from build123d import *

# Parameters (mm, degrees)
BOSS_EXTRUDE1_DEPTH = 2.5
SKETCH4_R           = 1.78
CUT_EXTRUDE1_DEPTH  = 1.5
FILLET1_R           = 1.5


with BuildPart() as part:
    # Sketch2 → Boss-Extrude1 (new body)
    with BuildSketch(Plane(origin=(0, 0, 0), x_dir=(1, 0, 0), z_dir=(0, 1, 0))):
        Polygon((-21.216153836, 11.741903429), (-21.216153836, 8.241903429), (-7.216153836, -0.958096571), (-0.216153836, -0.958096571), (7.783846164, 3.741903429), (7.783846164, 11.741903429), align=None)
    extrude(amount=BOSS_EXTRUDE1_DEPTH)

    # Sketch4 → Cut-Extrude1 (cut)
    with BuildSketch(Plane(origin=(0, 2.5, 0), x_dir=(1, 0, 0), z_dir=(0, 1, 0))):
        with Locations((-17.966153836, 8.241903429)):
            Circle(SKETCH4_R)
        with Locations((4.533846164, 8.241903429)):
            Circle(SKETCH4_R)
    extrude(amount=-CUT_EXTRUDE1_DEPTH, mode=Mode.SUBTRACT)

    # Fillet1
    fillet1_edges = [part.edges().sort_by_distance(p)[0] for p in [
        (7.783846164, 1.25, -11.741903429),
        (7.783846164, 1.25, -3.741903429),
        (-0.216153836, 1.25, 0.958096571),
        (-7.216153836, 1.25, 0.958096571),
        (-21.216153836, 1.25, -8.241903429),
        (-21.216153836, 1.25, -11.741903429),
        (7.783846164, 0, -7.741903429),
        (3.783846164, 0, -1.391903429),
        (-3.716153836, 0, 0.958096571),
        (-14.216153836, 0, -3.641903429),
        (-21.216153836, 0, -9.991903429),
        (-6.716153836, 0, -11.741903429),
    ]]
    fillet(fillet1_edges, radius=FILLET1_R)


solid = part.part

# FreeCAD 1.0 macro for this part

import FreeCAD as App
import Part
import Sketcher
from FreeCAD import Vector


def edges_at(feature, points):
    """Names of the edges that pass closest to the given points."""
    edges = feature.Shape.Edges
    near = lambda p: min(range(len(edges)), key=lambda i: edges[i].distToShape(Part.Vertex(*p))[0])
    return sorted({f"Edge{near(p) + 1}" for p in points})

doc = App.newDocument("Part")
params = doc.addObject("Spreadsheet::Sheet", "Params")
for row, (alias, value) in enumerate([
    ("sketch1_width", "7 mm"),
    ("sketch1_width2", "29 mm"),
    ("sketch1_height", "8 mm"),
    ("sketch1_height2", "3.5 mm"),
    ("pad1_length", "2.5 mm"),
    ("sketch2_diameter", "3.56 mm"),
    ("pocket1_length", "1.5 mm"),
    ("fillet_radius", "1.5 mm"),
], start=1):
    params.set(f"A{row}", alias)
    params.set(f"B{row}", "=" + value)
    params.setAlias(f"B{row}", alias)

body = doc.addObject("PartDesign::Body", "Body")

# Sketch on XZ plane
sketch1 = body.newObject("Sketcher::SketchObject", "Sketch")
sketch1.AttachmentSupport = (doc.getObject("XZ_Plane"), [""])
sketch1.MapMode = "FlatFace"
sketch1.addGeometry(Part.LineSegment(Vector(-21.2, -11.7, 0), Vector(-21.2, -8.2, 0)), False)
sketch1.addGeometry(Part.LineSegment(Vector(-21.2, -8.2, 0), Vector(-7.2, 1, 0)), False)
sketch1.addGeometry(Part.LineSegment(Vector(-7.2, 1, 0), Vector(-0.2, 1, 0)), False)
sketch1.addGeometry(Part.LineSegment(Vector(-0.2, 1, 0), Vector(7.8, -3.7, 0)), False)
sketch1.addGeometry(Part.LineSegment(Vector(7.8, -3.7, 0), Vector(7.8, -11.7, 0)), False)
sketch1.addGeometry(Part.LineSegment(Vector(7.8, -11.7, 0), Vector(-21.2, -11.7, 0)), False)
sketch1.addConstraint(Sketcher.Constraint("Coincident", 0, 2, 1, 1))
sketch1.addConstraint(Sketcher.Constraint("Coincident", 1, 2, 2, 1))
sketch1.addConstraint(Sketcher.Constraint("Coincident", 2, 2, 3, 1))
sketch1.addConstraint(Sketcher.Constraint("Coincident", 3, 2, 4, 1))
sketch1.addConstraint(Sketcher.Constraint("Coincident", 4, 2, 5, 1))
sketch1.addConstraint(Sketcher.Constraint("Coincident", 5, 2, 0, 1))
sketch1.addConstraint(Sketcher.Constraint("Vertical", 0))
sketch1.addConstraint(Sketcher.Constraint("Horizontal", 2))
sketch1.addConstraint(Sketcher.Constraint("Vertical", 4))
sketch1.addConstraint(Sketcher.Constraint("Horizontal", 5))
sketch1.addConstraint(Sketcher.Constraint("DistanceX", 2, 1, 2, 2, 7.0))
sketch1.addConstraint(Sketcher.Constraint("DistanceX", 5, 2, 5, 1, 29.0))
sketch1.addConstraint(Sketcher.Constraint("DistanceY", 4, 2, 4, 1, 8.0))
sketch1.addConstraint(Sketcher.Constraint("DistanceY", 0, 1, 0, 2, 3.5))
sketch1.addConstraint(Sketcher.Constraint("DistanceX", 0, 2, 1, 2, 14.0))
sketch1.addConstraint(Sketcher.Constraint("DistanceY", 0, 2, 1, 2, 9.2))
sketch1.addConstraint(Sketcher.Constraint("DistanceX", 0, 2, -1, 1, 21.216154))
sketch1.addConstraint(Sketcher.Constraint("DistanceY", 0, 2, -1, 1, 8.241903))
sketch1.setExpression("Constraints[10]", "Params.sketch1_width")
sketch1.setExpression("Constraints[11]", "Params.sketch1_width2")
sketch1.setExpression("Constraints[12]", "Params.sketch1_height")
sketch1.setExpression("Constraints[13]", "Params.sketch1_height2")
pad1 = body.newObject("PartDesign::Pad", "Pad")
pad1.Profile = sketch1
pad1.setExpression("Length", "Params.pad1_length")
pad1.Reversed = True

# Sketch on XZ plane
sketch2 = body.newObject("Sketcher::SketchObject", "Sketch001")
sketch2.AttachmentSupport = (doc.getObject("XZ_Plane"), [""])
sketch2.MapMode = "FlatFace"
sketch2.AttachmentOffset = App.Placement(Vector(0, 0, -2.5), App.Rotation())
sketch2.addGeometry(Part.Circle(Vector(-18, -8.2, 0), Vector(0, 0, 1), 1.8), False)
sketch2.addGeometry(Part.Circle(Vector(4.5, -8.2, 0), Vector(0, 0, 1), 1.8), False)
sketch2.addConstraint(Sketcher.Constraint("Equal", 0, 1))
sketch2.addConstraint(Sketcher.Constraint("Horizontal", 0, 3, 1, 3))
sketch2.addConstraint(Sketcher.Constraint("Diameter", 0, 3.56))
sketch2.addConstraint(Sketcher.Constraint("DistanceX", 0, 3, 1, 3, 22.5))
sketch2.addConstraint(Sketcher.Constraint("DistanceX", 0, 3, -1, 1, 17.966154))
sketch2.addConstraint(Sketcher.Constraint("DistanceY", 0, 3, -1, 1, 8.241903))
sketch2.setExpression("Constraints[2]", "Params.sketch2_diameter")
pocket1 = body.newObject("PartDesign::Pocket", "Pocket")
pocket1.Profile = sketch2
pocket1.setExpression("Length", "Params.pocket1_length")
pocket1.Reversed = True
doc.recompute()

fillet = body.newObject("PartDesign::Fillet", "Fillet")
fillet.Base = (pocket1, edges_at(pocket1, [
    (7.784, 1.25, -11.742),
    (7.784, 1.25, -3.742),
    (-0.216, 1.25, 0.958),
    (-7.216, 1.25, 0.958),
    (-21.216, 1.25, -8.242),
    (-21.216, 1.25, -11.742),
    (7.784, 0, -7.742),
    (3.784, 0, -1.392),
    (-3.716, 0, 0.958),
    (-14.216, 0, -3.642),
    (-21.216, 0, -9.992),
    (-6.716, 0, -11.742),
]))
fillet.setExpression("Radius", "Params.fillet_radius")

doc.recompute()
